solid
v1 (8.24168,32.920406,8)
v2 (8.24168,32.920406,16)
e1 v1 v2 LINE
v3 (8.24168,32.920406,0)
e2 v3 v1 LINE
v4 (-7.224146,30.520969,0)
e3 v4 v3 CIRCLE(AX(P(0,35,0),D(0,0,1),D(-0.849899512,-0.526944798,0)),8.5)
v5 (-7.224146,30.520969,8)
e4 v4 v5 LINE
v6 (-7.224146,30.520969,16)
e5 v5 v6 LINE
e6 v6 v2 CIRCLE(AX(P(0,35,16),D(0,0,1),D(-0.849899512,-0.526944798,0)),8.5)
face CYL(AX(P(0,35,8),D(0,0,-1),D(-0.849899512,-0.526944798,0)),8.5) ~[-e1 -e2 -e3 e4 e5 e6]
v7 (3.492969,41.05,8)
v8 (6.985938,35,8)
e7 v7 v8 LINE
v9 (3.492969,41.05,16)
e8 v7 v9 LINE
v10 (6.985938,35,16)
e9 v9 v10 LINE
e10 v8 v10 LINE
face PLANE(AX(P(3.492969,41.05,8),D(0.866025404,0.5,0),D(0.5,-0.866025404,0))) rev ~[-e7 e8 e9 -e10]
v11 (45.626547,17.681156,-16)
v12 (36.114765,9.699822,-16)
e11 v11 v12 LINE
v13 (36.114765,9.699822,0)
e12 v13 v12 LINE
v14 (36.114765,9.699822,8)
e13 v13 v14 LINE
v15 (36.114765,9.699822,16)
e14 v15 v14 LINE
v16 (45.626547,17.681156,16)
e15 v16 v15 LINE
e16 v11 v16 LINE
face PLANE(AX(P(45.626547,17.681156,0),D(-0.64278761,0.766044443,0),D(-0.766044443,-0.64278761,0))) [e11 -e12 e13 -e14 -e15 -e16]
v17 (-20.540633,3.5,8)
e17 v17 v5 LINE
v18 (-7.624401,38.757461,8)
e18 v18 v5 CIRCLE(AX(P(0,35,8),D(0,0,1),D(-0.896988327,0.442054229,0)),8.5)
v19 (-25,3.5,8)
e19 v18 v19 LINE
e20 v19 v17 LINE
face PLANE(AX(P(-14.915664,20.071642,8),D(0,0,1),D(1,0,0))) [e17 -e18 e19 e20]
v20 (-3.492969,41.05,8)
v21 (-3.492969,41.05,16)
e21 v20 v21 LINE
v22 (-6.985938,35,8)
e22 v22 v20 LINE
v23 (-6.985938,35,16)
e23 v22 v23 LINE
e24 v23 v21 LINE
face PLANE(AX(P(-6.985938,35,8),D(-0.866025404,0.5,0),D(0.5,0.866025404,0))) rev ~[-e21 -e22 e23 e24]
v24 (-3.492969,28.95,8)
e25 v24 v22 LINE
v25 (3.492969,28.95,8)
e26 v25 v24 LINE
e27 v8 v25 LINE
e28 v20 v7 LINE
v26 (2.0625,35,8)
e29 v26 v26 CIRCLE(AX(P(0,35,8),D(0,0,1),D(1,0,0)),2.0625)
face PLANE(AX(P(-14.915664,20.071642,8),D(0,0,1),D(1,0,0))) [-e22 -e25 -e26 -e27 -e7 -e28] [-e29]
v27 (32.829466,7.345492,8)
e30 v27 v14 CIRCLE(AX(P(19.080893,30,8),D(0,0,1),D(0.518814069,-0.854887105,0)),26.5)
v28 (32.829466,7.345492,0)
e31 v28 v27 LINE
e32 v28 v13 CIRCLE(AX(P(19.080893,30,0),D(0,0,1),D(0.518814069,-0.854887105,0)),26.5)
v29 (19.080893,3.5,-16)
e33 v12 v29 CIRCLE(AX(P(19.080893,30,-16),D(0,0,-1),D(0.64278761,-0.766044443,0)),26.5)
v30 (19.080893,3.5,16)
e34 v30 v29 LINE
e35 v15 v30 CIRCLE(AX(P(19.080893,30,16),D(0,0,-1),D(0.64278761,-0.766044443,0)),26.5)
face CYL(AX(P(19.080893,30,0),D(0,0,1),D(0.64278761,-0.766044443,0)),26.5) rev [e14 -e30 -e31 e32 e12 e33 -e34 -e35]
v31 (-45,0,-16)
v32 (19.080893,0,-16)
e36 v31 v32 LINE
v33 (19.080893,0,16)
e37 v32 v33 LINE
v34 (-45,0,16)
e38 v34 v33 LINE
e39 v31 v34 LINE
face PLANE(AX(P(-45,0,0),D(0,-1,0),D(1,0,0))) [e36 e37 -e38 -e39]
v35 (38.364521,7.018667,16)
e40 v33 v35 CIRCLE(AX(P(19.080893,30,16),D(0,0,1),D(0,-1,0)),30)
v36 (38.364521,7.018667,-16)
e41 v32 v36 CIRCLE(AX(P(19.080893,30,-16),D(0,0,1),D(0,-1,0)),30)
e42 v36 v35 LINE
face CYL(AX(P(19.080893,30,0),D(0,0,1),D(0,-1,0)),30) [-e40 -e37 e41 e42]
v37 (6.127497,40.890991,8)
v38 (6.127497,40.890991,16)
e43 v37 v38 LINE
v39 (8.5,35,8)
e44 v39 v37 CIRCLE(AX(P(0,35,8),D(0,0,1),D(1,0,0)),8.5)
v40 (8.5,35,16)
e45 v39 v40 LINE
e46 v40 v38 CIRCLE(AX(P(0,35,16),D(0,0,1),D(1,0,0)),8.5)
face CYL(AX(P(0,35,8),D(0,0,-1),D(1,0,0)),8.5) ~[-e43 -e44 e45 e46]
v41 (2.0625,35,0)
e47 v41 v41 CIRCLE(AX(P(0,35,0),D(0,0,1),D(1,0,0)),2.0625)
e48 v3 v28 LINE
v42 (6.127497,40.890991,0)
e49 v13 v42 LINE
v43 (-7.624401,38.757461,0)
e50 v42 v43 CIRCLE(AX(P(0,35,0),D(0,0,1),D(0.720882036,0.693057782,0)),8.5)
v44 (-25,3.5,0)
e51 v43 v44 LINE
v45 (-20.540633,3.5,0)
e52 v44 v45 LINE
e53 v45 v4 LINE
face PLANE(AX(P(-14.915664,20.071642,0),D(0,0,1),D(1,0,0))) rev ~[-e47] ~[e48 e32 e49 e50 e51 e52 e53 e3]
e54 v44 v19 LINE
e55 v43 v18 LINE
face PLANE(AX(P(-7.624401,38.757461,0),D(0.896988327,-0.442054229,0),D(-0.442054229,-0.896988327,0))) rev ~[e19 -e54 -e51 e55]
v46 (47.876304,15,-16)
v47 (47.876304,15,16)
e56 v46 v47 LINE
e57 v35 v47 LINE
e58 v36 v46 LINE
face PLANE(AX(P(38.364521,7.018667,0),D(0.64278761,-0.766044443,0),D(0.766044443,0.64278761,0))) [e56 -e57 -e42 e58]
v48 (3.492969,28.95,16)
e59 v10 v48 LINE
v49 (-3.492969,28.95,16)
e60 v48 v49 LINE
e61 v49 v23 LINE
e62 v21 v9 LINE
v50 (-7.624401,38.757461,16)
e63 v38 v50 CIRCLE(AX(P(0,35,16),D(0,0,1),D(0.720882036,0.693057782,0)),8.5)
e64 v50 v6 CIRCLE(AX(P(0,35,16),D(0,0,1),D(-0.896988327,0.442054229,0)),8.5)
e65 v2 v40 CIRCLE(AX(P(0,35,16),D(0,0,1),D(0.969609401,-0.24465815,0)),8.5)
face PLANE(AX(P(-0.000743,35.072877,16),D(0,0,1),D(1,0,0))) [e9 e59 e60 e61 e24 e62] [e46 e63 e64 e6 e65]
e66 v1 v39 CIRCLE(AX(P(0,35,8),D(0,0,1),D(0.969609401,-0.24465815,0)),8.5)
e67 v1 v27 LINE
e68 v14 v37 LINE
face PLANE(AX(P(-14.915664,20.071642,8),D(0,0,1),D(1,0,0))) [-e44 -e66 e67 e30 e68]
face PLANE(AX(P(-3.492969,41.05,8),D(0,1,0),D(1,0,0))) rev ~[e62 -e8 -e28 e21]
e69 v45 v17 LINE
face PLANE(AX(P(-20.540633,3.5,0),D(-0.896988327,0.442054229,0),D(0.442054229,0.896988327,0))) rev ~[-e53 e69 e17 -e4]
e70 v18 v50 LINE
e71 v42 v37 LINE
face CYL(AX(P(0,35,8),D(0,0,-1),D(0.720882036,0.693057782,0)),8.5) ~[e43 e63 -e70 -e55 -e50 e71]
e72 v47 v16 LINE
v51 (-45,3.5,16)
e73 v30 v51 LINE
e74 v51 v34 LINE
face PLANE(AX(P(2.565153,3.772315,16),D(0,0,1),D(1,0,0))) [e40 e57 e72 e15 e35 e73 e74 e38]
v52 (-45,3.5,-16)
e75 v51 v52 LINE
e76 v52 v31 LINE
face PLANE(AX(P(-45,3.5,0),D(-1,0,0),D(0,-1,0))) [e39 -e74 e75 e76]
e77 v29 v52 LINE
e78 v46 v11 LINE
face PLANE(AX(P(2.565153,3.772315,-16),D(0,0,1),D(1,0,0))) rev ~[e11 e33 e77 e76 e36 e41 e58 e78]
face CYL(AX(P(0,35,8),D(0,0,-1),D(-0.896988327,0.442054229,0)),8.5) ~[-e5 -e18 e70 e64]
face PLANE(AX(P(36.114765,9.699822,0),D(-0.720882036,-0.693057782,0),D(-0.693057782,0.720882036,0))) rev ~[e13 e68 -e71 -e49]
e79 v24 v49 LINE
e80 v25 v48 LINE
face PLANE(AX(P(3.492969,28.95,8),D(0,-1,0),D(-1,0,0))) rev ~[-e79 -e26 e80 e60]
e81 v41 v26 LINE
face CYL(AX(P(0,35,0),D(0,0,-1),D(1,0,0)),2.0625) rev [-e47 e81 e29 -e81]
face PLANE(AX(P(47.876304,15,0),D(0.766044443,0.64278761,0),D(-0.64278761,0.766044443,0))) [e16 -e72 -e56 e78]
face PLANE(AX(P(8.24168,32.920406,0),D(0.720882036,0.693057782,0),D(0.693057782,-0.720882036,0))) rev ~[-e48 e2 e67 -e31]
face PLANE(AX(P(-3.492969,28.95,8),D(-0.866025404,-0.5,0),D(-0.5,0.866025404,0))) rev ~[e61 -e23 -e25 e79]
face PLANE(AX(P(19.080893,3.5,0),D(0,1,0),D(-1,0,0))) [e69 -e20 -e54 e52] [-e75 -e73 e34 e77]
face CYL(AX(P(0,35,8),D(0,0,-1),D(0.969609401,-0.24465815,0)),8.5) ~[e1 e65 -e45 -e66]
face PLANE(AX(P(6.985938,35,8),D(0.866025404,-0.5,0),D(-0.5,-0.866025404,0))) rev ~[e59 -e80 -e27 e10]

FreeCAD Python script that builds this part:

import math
import FreeCAD as App
import Part
import Sketcher
Q = App.Units.Quantity

doc = App.newDocument("Part")
body = doc.addObject("PartDesign::Body", "Body")

# Sketch on XY plane
sketch1 = body.newObject("Sketcher::SketchObject", "Sketch")
sketch1.AttachmentSupport = (doc.getObject("XY_Plane"), [""])
sketch1.MapMode = "FlatFace"
sketch1.addGeometry(Part.LineSegment(App.Vector(-45, 3.5, 0), App.Vector(-45, 0, 0)), False)
sketch1.addGeometry(Part.LineSegment(App.Vector(-45, 0, 0), App.Vector(19.1, 0, 0)), False)
sketch1.addGeometry(Part.ArcOfCircle(Part.Circle(App.Vector(19.1, 30, 0), App.Vector(0, 0, 1), 30), math.radians(-90), math.radians(-50)), False)
sketch1.addGeometry(Part.LineSegment(App.Vector(38.4, 7, 0), App.Vector(47.9, 15, 0)), False)
sketch1.addGeometry(Part.LineSegment(App.Vector(47.9, 15, 0), App.Vector(45.6, 17.7, 0)), False)
sketch1.addGeometry(Part.LineSegment(App.Vector(45.6, 17.7, 0), App.Vector(36.1, 9.7, 0)), False)
sketch1.addGeometry(Part.ArcOfCircle(Part.Circle(App.Vector(19.1, 30, 0), App.Vector(0, 0, 1), 26.5), math.radians(-90), math.radians(-50)), False)
sketch1.addGeometry(Part.LineSegment(App.Vector(19.1, 3.5, 0), App.Vector(-45, 3.5, 0)), False)
sketch1.addConstraint(Sketcher.Constraint("Coincident", 0, 2, 1, 1))
sketch1.addConstraint(Sketcher.Constraint("Tangent", 1, 2, 2, 1))
sketch1.addConstraint(Sketcher.Constraint("Tangent", 2, 2, 3, 1))
sketch1.addConstraint(Sketcher.Constraint("Coincident", 3, 2, 4, 1))
sketch1.addConstraint(Sketcher.Constraint("Coincident", 4, 2, 5, 1))
sketch1.addConstraint(Sketcher.Constraint("Tangent", 5, 2, 6, 2))
sketch1.addConstraint(Sketcher.Constraint("Tangent", 6, 1, 7, 1))
sketch1.addConstraint(Sketcher.Constraint("Coincident", 7, 2, 0, 1))
sketch1.addConstraint(Sketcher.Constraint("Vertical", 0))
sketch1.addConstraint(Sketcher.Constraint("Horizontal", 1))
sketch1.addConstraint(Sketcher.Constraint("Horizontal", 7))
sketch1.addConstraint(Sketcher.Constraint("Coincident", 6, 3, 2, 3))
sketch1.addConstraint(Sketcher.Constraint("PointOnObject", 0, 2, -1))
sketch1.addConstraint(Sketcher.Constraint("Perpendicular", 3, 4))
sketch1.addConstraint(Sketcher.Constraint("Perpendicular", 4, 5))
sketch1.addConstraint(Sketcher.Constraint("Radius", 2, Q("30 mm")))
sketch1.addConstraint(Sketcher.Constraint("Radius", 6, Q("26.5 mm")))
sketch1.addConstraint(Sketcher.Constraint("Angle", 3, Q("40 deg")))
sketch1.addConstraint(Sketcher.Constraint("DistanceX", 0, 2, -1, 1, Q("45 mm")))
sketch1.addConstraint(Sketcher.Constraint("DistanceY", -1, 1, 3, 2, Q("15 mm")))
sketch1.addConstraint(Sketcher.Constraint("DistanceX", 1, 1, 1, 2, Q("64.080893 mm")))
pad1 = body.newObject("PartDesign::Pad", "Pad")
pad1.Profile = sketch1
pad1.Length = 32
pad1.Midplane = True

# Sketch on XY plane
sketch2 = body.newObject("Sketcher::SketchObject", "Sketch001")
sketch2.AttachmentSupport = (doc.getObject("XY_Plane"), [""])
sketch2.MapMode = "FlatFace"
sketch2.addGeometry(Part.LineSegment(App.Vector(-7.6, 38.8, 0), App.Vector(-25, 3.5, 0)), False)
sketch2.addGeometry(Part.LineSegment(App.Vector(-25, 3.5, 0), App.Vector(-20.5, 3.5, 0)), False)
sketch2.addGeometry(Part.LineSegment(App.Vector(-20.5, 3.5, 0), App.Vector(-7.2, 30.5, 0)), False)
sketch2.addGeometry(Part.ArcOfCircle(Part.Circle(App.Vector(0, 35, 0), App.Vector(0, 0, 1), 8.5), math.radians(-148), math.radians(-14)), False)
sketch2.addGeometry(Part.LineSegment(App.Vector(8.2, 32.9, 0), App.Vector(32.8, 7.3, 0)), False)
sketch2.addGeometry(Part.ArcOfCircle(Part.Circle(App.Vector(19.1, 30, 0), App.Vector(0, 0, 1), 26.5), math.radians(-58.75), math.radians(-50)), False)
sketch2.addGeometry(Part.LineSegment(App.Vector(36.1, 9.7, 0), App.Vector(6.1, 40.9, 0)), False)
sketch2.addGeometry(Part.ArcOfCircle(Part.Circle(App.Vector(0, 35, 0), App.Vector(0, 0, 1), 8.5), math.radians(44), math.radians(154)), False)
sketch2.addGeometry(Part.Circle(App.Vector(0, 35, 0), App.Vector(0, 0, 1), 2.1), False)
sketch2.addConstraint(Sketcher.Constraint("Coincident", 0, 2, 1, 1))
sketch2.addConstraint(Sketcher.Constraint("Coincident", 1, 2, 2, 1))
sketch2.addConstraint(Sketcher.Constraint("Coincident", 2, 2, 3, 1))
sketch2.addConstraint(Sketcher.Constraint("Coincident", 3, 2, 4, 1))
sketch2.addConstraint(Sketcher.Constraint("Coincident", 4, 2, 5, 1))
sketch2.addConstraint(Sketcher.Constraint("Coincident", 5, 2, 6, 1))
sketch2.addConstraint(Sketcher.Constraint("Tangent", 6, 2, 7, 1))
sketch2.addConstraint(Sketcher.Constraint("Tangent", 7, 2, 0, 1))
sketch2.addConstraint(Sketcher.Constraint("Horizontal", 1))
sketch2.addConstraint(Sketcher.Constraint("Coincident", 7, 3, 3, 3))
sketch2.addConstraint(Sketcher.Constraint("Coincident", 8, 3, 3, 3))
sketch2.addConstraint(Sketcher.Constraint("Equal", 3, 7))
sketch2.addConstraint(Sketcher.Constraint("PointOnObject", 3, 3, -2))
sketch2.addConstraint(Sketcher.Constraint("Parallel", 0, 2))
sketch2.addConstraint(Sketcher.Constraint("Parallel", 4, 6))
sketch2.addConstraint(Sketcher.Constraint("Radius", 3, Q("8.5 mm")))
sketch2.addConstraint(Sketcher.Constraint("Radius", 5, Q("26.5 mm")))
sketch2.addConstraint(Sketcher.Constraint("Diameter", 8, Q("4.125 mm")))
sketch2.addConstraint(Sketcher.Constraint("DistanceY", -1, 1, 3, 3, Q("35 mm")))
sketch2.addConstraint(Sketcher.Constraint("DistanceY", -1, 1, 5, 3, Q("30 mm")))
sketch2.addConstraint(Sketcher.Constraint("DistanceX", 0, 2, -1, 1, Q("25 mm")))
sketch2.addConstraint(Sketcher.Constraint("DistanceY", -1, 1, 0, 2, Q("3.5 mm")))
sketch2.addConstraint(Sketcher.Constraint("DistanceX", 4, 2, 5, 2, Q("3.285299 mm")))
sketch2.addConstraint(Sketcher.Constraint("DistanceX", 7, 2, 6, 2, Q("13.751898 mm")))
sketch2.addConstraint(Sketcher.Constraint("DistanceX", 1, 1, 1, 2, Q("4.459367 mm")))
sketch2.addConstraint(Sketcher.Constraint("DistanceX", -1, 1, 3, 2, Q("8.24168 mm")))
pad2 = body.newObject("PartDesign::Pad", "Pad001")
pad2.Profile = sketch2
pad2.Length = 8

# Sketch on XY plane
sketch3 = body.newObject("Sketcher::SketchObject", "Sketch002")
sketch3.AttachmentSupport = (doc.getObject("XY_Plane"), [""])
sketch3.MapMode = "FlatFace"
sketch3.AttachmentOffset = App.Placement(App.Vector(0, 0, 8), App.Rotation())
sketch3.addGeometry(Part.ArcOfCircle(Part.Circle(App.Vector(0, 35, 0), App.Vector(0, 0, 1), 8.5), math.radians(-14.16), math.radians(0)), False)
sketch3.addGeometry(Part.ArcOfCircle(Part.Circle(App.Vector(0, 35, 0), App.Vector(0, 0, 1), 8.5), math.radians(0), math.radians(44)), False)
sketch3.addGeometry(Part.ArcOfCircle(Part.Circle(App.Vector(0, 35, 0), App.Vector(0, 0, 1), 8.5), math.radians(44), math.radians(154)), False)
sketch3.addGeometry(Part.ArcOfCircle(Part.Circle(App.Vector(0, 35, 0), App.Vector(0, 0, 1), 8.5), math.radians(154), math.radians(212)), False)
sketch3.addGeometry(Part.ArcOfCircle(Part.Circle(App.Vector(0, 35, 0), App.Vector(0, 0, 1), 8.5), math.radians(-148), math.radians(-14)), False)
sketch3.addGeometry(Part.LineSegment(App.Vector(-3.5, 28.9, 0), App.Vector(-7, 35, 0)), False)
sketch3.addGeometry(Part.LineSegment(App.Vector(-7, 35, 0), App.Vector(-3.5, 41, 0)), False)
sketch3.addGeometry(Part.LineSegment(App.Vector(-3.5, 41, 0), App.Vector(3.5, 41, 0)), False)
sketch3.addGeometry(Part.LineSegment(App.Vector(3.5, 41, 0), App.Vector(7, 35, 0)), False)
sketch3.addGeometry(Part.LineSegment(App.Vector(7, 35, 0), App.Vector(3.5, 28.9, 0)), False)
sketch3.addGeometry(Part.LineSegment(App.Vector(3.5, 28.9, 0), App.Vector(-3.5, 28.9, 0)), False)
sketch3.addConstraint(Sketcher.Constraint("Tangent", 0, 2, 1, 1))
sketch3.addConstraint(Sketcher.Constraint("Tangent", 1, 2, 2, 1))
sketch3.addConstraint(Sketcher.Constraint("Tangent", 2, 2, 3, 1))
sketch3.addConstraint(Sketcher.Constraint("Tangent", 3, 2, 4, 1))
sketch3.addConstraint(Sketcher.Constraint("Tangent", 4, 2, 0, 1))
sketch3.addConstraint(Sketcher.Constraint("Coincident", 5, 2, 6, 1))
sketch3.addConstraint(Sketcher.Constraint("Coincident", 6, 2, 7, 1))
sketch3.addConstraint(Sketcher.Constraint("Coincident", 7, 2, 8, 1))
sketch3.addConstraint(Sketcher.Constraint("Coincident", 8, 2, 9, 1))
sketch3.addConstraint(Sketcher.Constraint("Coincident", 9, 2, 10, 1))
sketch3.addConstraint(Sketcher.Constraint("Coincident", 10, 2, 5, 1))
sketch3.addConstraint(Sketcher.Constraint("Horizontal", 7))
sketch3.addConstraint(Sketcher.Constraint("Horizontal", 10))
sketch3.addConstraint(Sketcher.Constraint("Coincident", 2, 3, 0, 3))
sketch3.addConstraint(Sketcher.Constraint("Symmetric", 5, 2, 8, 2, -2))
sketch3.addConstraint(Sketcher.Constraint("PointOnObject", 0, 3, -2))
sketch3.addConstraint(Sketcher.Constraint("Parallel", 5, 8))
sketch3.addConstraint(Sketcher.Constraint("Parallel", 6, 9))
sketch3.addConstraint(Sketcher.Constraint("Horizontal", 4, 3, 0, 2))
sketch3.addConstraint(Sketcher.Constraint("Horizontal", 0, 2, 5, 2))
sketch3.addConstraint(Sketcher.Constraint("Vertical", 7, 2, 9, 2))
sketch3.addConstraint(Sketcher.Constraint("Vertical", 6, 2, 10, 2))
sketch3.addConstraint(Sketcher.Constraint("Radius", 0, Q("8.5 mm")))
sketch3.addConstraint(Sketcher.Constraint("Angle", 5, Q("120 deg")))
sketch3.addConstraint(Sketcher.Constraint("DistanceY", -1, 1, 0, 3, Q("35 mm")))
sketch3.addConstraint(Sketcher.Constraint("DistanceY", -1, 1, 6, 2, Q("41.05 mm")))
sketch3.addConstraint(Sketcher.Constraint("DistanceX", 7, 1, 7, 2, Q("6.985938 mm")))
sketch3.addConstraint(Sketcher.Constraint("DistanceX", 2, 2, -1, 1, Q("7.624401 mm")))
sketch3.addConstraint(Sketcher.Constraint("DistanceY", -1, 1, 1, 2, Q("40.890991 mm")))
sketch3.addConstraint(Sketcher.Constraint("DistanceY", -1, 1, 3, 2, Q("30.520969 mm")))
sketch3.addConstraint(Sketcher.Constraint("DistanceX", -1, 1, 4, 2, Q("8.24168 mm")))
pad3 = body.newObject("PartDesign::Pad", "Pad002")
pad3.Profile = sketch3
pad3.Length = 8

doc.recompute()
